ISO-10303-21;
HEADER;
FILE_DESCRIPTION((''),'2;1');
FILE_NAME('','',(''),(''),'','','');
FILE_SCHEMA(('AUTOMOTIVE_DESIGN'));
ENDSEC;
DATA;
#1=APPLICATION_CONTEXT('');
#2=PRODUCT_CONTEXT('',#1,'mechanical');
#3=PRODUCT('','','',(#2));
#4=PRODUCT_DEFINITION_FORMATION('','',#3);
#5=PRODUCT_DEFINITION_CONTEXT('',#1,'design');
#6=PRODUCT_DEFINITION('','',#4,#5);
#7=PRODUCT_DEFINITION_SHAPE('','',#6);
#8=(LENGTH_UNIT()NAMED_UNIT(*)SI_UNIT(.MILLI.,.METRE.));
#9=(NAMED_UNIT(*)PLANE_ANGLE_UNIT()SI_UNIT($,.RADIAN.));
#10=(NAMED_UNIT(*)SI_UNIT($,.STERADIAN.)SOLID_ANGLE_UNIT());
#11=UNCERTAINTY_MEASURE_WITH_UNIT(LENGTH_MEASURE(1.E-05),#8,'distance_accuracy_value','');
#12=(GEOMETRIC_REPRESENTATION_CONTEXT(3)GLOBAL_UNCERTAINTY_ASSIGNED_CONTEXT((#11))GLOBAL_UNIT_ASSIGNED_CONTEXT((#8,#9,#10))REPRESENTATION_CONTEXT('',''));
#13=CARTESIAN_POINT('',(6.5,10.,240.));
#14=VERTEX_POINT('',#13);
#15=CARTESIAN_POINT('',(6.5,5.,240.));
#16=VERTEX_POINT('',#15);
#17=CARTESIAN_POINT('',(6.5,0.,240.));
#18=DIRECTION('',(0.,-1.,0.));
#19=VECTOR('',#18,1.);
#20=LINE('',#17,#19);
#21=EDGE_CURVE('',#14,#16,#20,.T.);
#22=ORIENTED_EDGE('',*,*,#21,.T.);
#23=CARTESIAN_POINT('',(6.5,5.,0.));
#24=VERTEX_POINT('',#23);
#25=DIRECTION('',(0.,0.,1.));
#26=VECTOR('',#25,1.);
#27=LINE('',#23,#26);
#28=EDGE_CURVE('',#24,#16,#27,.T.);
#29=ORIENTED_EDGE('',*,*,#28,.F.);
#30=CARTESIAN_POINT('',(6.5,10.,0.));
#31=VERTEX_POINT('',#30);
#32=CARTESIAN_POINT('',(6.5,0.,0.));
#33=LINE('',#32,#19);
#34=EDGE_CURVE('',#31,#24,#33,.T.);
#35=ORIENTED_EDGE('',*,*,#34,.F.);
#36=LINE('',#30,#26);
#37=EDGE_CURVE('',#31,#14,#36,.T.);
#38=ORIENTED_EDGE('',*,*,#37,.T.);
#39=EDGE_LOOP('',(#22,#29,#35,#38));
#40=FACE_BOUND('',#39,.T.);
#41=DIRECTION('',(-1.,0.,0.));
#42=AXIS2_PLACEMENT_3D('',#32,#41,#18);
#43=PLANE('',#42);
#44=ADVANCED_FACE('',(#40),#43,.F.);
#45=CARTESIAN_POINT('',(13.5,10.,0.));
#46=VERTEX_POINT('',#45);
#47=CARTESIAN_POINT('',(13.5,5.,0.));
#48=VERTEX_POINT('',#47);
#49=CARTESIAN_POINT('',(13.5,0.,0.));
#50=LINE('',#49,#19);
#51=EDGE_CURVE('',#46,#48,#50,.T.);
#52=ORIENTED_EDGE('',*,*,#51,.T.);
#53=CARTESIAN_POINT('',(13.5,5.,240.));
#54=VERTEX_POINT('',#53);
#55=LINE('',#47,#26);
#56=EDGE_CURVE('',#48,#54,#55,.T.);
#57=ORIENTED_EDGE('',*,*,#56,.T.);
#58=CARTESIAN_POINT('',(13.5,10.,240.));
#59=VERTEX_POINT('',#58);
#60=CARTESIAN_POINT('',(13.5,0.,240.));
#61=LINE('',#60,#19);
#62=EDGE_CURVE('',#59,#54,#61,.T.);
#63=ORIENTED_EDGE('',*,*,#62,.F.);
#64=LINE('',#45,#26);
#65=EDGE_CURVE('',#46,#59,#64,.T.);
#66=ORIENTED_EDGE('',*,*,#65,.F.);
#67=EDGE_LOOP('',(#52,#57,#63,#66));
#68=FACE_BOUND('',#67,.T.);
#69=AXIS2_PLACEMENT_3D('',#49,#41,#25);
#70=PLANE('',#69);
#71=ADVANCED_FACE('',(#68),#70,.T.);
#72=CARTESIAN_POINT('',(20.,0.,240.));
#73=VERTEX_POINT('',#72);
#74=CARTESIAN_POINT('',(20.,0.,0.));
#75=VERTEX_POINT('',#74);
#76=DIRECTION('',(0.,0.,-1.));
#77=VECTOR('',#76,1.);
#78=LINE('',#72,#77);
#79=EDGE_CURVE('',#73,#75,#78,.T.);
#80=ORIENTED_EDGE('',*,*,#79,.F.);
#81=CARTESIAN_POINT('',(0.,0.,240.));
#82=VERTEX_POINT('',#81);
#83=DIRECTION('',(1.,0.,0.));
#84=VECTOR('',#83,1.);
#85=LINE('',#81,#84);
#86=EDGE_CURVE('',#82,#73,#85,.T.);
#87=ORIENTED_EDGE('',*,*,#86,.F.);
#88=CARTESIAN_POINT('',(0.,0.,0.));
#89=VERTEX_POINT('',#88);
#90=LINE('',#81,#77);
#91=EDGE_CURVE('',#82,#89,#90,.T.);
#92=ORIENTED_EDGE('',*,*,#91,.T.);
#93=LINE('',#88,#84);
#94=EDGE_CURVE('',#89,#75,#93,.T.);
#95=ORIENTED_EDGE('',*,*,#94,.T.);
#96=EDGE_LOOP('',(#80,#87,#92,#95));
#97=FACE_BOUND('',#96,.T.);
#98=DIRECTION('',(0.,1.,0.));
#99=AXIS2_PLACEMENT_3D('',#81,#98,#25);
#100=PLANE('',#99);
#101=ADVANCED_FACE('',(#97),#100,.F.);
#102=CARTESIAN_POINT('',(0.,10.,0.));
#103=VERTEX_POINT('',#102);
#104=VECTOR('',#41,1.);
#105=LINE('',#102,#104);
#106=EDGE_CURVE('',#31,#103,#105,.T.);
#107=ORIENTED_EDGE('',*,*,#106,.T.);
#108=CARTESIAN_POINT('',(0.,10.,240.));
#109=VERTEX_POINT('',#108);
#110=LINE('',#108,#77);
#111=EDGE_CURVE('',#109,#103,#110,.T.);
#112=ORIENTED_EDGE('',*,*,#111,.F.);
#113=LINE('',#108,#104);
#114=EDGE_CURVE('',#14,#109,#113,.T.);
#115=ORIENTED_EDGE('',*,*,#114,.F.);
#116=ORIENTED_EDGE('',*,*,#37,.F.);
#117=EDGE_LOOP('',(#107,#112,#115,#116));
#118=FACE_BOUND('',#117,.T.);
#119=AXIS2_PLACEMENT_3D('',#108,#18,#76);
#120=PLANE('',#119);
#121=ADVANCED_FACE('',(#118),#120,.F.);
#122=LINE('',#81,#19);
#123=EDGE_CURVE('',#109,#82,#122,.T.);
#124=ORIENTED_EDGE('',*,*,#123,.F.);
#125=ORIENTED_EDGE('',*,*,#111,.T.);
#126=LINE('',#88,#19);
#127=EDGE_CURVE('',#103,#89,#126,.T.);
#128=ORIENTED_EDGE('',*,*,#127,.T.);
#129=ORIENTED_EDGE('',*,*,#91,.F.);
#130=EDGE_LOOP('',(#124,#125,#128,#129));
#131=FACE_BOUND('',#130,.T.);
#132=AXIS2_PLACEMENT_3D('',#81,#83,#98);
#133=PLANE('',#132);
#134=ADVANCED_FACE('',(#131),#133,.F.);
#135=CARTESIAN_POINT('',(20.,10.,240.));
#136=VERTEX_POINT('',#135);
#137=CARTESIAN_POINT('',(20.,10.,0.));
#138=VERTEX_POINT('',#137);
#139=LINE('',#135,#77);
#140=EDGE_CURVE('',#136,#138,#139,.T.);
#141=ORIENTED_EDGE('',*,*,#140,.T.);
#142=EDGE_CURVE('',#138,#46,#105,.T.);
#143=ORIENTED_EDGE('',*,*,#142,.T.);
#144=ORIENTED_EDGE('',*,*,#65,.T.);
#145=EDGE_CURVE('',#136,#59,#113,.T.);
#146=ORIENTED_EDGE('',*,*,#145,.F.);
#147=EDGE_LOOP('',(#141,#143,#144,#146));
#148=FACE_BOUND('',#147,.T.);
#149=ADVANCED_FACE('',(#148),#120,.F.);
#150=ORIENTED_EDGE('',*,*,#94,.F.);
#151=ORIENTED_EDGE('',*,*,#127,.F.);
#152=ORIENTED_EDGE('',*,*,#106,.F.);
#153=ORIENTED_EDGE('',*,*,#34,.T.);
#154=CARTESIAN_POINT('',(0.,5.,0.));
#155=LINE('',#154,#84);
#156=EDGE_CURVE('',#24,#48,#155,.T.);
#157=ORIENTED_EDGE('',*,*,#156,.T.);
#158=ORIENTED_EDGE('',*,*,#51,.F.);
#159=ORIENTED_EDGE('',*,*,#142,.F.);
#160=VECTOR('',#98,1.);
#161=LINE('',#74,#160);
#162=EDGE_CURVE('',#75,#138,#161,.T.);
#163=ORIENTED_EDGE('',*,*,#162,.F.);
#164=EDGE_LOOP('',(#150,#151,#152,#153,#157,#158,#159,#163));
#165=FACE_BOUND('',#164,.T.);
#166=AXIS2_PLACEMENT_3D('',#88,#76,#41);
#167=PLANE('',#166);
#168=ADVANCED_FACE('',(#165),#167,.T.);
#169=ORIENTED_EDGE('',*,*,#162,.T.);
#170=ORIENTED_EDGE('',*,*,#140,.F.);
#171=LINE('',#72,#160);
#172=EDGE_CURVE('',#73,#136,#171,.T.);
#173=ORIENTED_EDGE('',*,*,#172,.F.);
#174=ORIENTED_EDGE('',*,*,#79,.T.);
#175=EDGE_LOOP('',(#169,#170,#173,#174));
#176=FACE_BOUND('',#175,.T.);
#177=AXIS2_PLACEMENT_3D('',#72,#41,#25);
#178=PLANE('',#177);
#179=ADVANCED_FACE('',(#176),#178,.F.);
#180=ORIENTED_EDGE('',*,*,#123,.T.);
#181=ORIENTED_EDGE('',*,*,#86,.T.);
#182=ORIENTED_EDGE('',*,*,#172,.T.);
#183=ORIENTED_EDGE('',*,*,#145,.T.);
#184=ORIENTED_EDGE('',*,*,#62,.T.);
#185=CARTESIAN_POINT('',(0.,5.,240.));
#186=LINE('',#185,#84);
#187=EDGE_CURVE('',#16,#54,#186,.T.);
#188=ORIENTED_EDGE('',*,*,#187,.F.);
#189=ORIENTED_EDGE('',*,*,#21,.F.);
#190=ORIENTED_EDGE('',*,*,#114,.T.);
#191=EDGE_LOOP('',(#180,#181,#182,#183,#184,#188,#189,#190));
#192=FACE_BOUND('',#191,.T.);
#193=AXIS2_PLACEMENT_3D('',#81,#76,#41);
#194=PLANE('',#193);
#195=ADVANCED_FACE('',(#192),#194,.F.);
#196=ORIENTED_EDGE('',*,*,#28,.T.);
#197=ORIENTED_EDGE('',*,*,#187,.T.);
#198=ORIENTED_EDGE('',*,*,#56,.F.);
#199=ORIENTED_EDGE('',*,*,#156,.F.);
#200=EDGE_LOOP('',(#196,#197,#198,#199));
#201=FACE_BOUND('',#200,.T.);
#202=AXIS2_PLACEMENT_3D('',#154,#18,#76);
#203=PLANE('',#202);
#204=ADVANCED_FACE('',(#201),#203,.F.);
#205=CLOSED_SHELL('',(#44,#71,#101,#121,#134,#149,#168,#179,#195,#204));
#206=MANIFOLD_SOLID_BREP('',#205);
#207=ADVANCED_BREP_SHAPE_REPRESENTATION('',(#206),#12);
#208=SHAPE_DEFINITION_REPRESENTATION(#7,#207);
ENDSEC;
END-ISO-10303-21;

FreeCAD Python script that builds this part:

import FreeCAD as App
import Part
import Sketcher
from FreeCAD import Vector
Q = App.Units.Quantity


def add_polygon(sketch, points):
    """Adds a closed chain of lines whose ends are joined by coincident constraints."""
    first, n = sketch.GeometryCount, len(points)
    for a, b in zip(points, points[1:] + points[:1]):
        sketch.addGeometry(Part.LineSegment(App.Vector(*a, 0), App.Vector(*b, 0)), False)
    for i in range(n):
        sketch.addConstraint(Sketcher.Constraint("Coincident", first + i, 2, first + (i + 1) % n, 1))

doc = App.newDocument("Part")
body = doc.addObject("PartDesign::Body", "Body")

sketch1 = body.newObject("Sketcher::SketchObject", "Sketch")
sketch1.AttachmentSupport = (doc.getObject("XY_Plane"), [""])
sketch1.MapMode = "FlatFace"
add_polygon(sketch1, [(0, 10), (0, 0), (20, 0), (20, 10)])
sketch1.addConstraint([
    Sketcher.Constraint("Vertical", 0),
    Sketcher.Constraint("Horizontal", 1),
    Sketcher.Constraint("Vertical", 2),
    Sketcher.Constraint("Horizontal", 3),
    Sketcher.Constraint("Coincident", 0, 2, -1, 1),
    Sketcher.Constraint("DistanceX", 1, 1, 1, 2, Q("20 mm")),
    Sketcher.Constraint("DistanceY", 0, 2, 0, 1, Q("10 mm")),
])
pad1 = body.newObject("PartDesign::Pad", "Pad")
pad1.Profile = sketch1
pad1.Length = 240

sketch2 = body.newObject("Sketcher::SketchObject", "Sketch001")
sketch2.AttachmentSupport = (doc.getObject("XY_Plane"), [""])
sketch2.MapMode = "FlatFace"
sketch2.AttachmentOffset = App.Placement(Vector(0, 0, 240), App.Rotation())
add_polygon(sketch2, [(6, 10), (6, 5), (14, 5), (14, 10)])
sketch2.addConstraint([
    Sketcher.Constraint("Vertical", 0),
    Sketcher.Constraint("Horizontal", 1),
    Sketcher.Constraint("Vertical", 2),
    Sketcher.Constraint("Horizontal", 3),
    Sketcher.Constraint("DistanceX", 1, 1, 1, 2, Q("7 mm")),
    Sketcher.Constraint("DistanceY", 0, 2, 0, 1, Q("5 mm")),
    Sketcher.Constraint("DistanceY", -1, 1, 0, 2, Q("5 mm")),
    Sketcher.Constraint("DistanceX", -1, 1, 0, 2, Q("6.5 mm")),
])
pocket1 = body.newObject("PartDesign::Pocket", "Pocket")
pocket1.Profile = sketch2
pocket1.Type = "ThroughAll"

doc.recompute()
